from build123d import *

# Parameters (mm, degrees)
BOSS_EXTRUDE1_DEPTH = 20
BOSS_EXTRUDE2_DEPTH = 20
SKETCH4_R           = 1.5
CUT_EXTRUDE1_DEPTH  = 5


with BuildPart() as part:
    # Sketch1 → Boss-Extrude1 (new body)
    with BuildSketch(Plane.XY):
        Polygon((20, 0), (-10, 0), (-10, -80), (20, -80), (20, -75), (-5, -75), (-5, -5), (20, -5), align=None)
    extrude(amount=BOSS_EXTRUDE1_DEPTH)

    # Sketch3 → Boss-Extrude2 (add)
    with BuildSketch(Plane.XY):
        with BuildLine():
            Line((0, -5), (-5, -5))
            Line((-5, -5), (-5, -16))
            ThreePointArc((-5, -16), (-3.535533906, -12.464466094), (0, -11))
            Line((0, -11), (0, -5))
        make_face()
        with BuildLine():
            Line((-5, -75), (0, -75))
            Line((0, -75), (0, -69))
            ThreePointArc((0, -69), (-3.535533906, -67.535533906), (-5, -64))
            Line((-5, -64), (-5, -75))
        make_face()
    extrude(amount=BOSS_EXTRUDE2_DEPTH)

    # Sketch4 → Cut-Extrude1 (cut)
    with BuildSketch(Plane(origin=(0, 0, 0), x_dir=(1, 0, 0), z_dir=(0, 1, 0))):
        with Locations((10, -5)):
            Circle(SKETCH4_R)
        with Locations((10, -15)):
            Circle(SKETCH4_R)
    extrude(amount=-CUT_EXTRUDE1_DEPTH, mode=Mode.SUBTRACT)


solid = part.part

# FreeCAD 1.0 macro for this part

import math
import FreeCAD as App
import Part
import Sketcher

V = App.Vector
Q = App.Units.Quantity


def add_polygon(sketch, points):
    """Adds a closed chain of lines whose ends are joined by coincident constraints."""
    first, n = sketch.GeometryCount, len(points)
    for a, b in zip(points, points[1:] + points[:1]):
        sketch.addGeometry(Part.LineSegment(App.Vector(*a, 0), App.Vector(*b, 0)), False)
    for i in range(n):
        sketch.addConstraint(Sketcher.Constraint("Coincident", first + i, 2, first + (i + 1) % n, 1))

doc = App.newDocument("Part")
params = doc.addObject("Spreadsheet::Sheet", "Params")
for row, (alias, value) in enumerate([
    ("sketch1_width", "30 mm"),
    ("sketch1_width2", "25 mm"),
    ("sketch1_height", "80 mm"),
    ("sketch1_height2", "5 mm"),
    ("pad1_length", "20 mm"),
    ("sketch2_radius", "5 mm"),
    ("sketch2_height", "11 mm"),
    ("pad2_length", "20 mm"),
    ("sketch3_diameter", "3 mm"),
    ("pocket1_length", "5 mm"),
], start=1):
    params.set(f"A{row}", alias)
    params.set(f"B{row}", "=" + value)
    params.setAlias(f"B{row}", alias)

body = doc.addObject("PartDesign::Body", "Body")

# Sketch on XY plane
sketch1 = doc.addObject("Sketcher::SketchObject", "Sketch")
body.addObject(sketch1)
sketch1.AttachmentSupport = (doc.XY_Plane, [""])
sketch1.MapMode = "FlatFace"
add_polygon(sketch1, [(20, 0), (-10, 0), (-10, -80), (20, -80), (20, -75), (-5, -75), (-5, -5), (20, -5)])  # lines 0-7
sketch1.addConstraint([
    Sketcher.Constraint("Horizontal", 0),
    Sketcher.Constraint("Vertical", 1),
    Sketcher.Constraint("Horizontal", 2),
    Sketcher.Constraint("Vertical", 3),
    Sketcher.Constraint("Horizontal", 4),
    Sketcher.Constraint("Vertical", 5),
    Sketcher.Constraint("Horizontal", 6),
    Sketcher.Constraint("Vertical", 7),
    Sketcher.Constraint("PointOnObject", 0, 2, -1),
    Sketcher.Constraint("Vertical", 3, 2, 6, 2),
    Sketcher.Constraint("Equal", 3, 7),
    Sketcher.Constraint("DistanceX", 0, 2, 0, 1, Q("30 mm")),
    Sketcher.Constraint("DistanceX", 4, 2, 4, 1, Q("25 mm")),
    Sketcher.Constraint("DistanceY", 1, 2, 1, 1, Q("80 mm")),
    Sketcher.Constraint("DistanceY", 3, 1, 3, 2, Q("5 mm")),
    Sketcher.Constraint("DistanceX", 0, 2, -1, 1, Q("10 mm")),
])
sketch1.setExpression("Constraints[19]", "Params.sketch1_width")
sketch1.setExpression("Constraints[20]", "Params.sketch1_width2")
sketch1.setExpression("Constraints[21]", "Params.sketch1_height")
sketch1.setExpression("Constraints[22]", "Params.sketch1_height2")
pad1 = doc.addObject("PartDesign::Pad", "Pad")
body.addObject(pad1)
pad1.Profile = sketch1
pad1.setExpression("Length", "Params.pad1_length")

# Sketch on XY plane
sketch2 = doc.addObject("Sketcher::SketchObject", "Sketch001")
body.addObject(sketch2)
sketch2.AttachmentSupport = (doc.XY_Plane, [""])
sketch2.MapMode = "FlatFace"
sketch2.addGeometry([
    Part.LineSegment(V(0, -5, 0), V(-5, -5, 0)),  # 0
    Part.LineSegment(V(-5, -5, 0), V(-5, -16, 0)),  # 1
    Part.ArcOfCircle(Part.Circle(V(0, -16, 0), V(0, 0, 1), 5), math.radians(90), math.radians(180)),  # 2
    Part.LineSegment(V(0, -11, 0), V(0, -5, 0)),  # 3
    Part.LineSegment(V(-5, -75, 0), V(0, -75, 0)),  # 4
    Part.LineSegment(V(0, -75, 0), V(0, -69, 0)),  # 5
    Part.ArcOfCircle(Part.Circle(V(0, -64, 0), V(0, 0, 1), 5), math.radians(180), math.radians(270)),  # 6
    Part.LineSegment(V(-5, -64, 0), V(-5, -75, 0)),  # 7
], False)
sketch2.addConstraint([
    Sketcher.Constraint("Coincident", 0, 2, 1, 1),
    Sketcher.Constraint("Tangent", 1, 2, 2, 2),
    Sketcher.Constraint("Coincident", 2, 1, 3, 1),
    Sketcher.Constraint("Coincident", 3, 2, 0, 1),
    Sketcher.Constraint("Coincident", 4, 2, 5, 1),
    Sketcher.Constraint("Coincident", 5, 2, 6, 2),
    Sketcher.Constraint("Tangent", 6, 1, 7, 1),
    Sketcher.Constraint("Coincident", 7, 2, 4, 1),
    Sketcher.Constraint("Horizontal", 0),
    Sketcher.Constraint("Vertical", 1),
    Sketcher.Constraint("Vertical", 3),
    Sketcher.Constraint("Horizontal", 4),
    Sketcher.Constraint("Vertical", 5),
    Sketcher.Constraint("Vertical", 7),
    Sketcher.Constraint("Equal", 2, 6),
    Sketcher.Constraint("PointOnObject", 2, 3, -2),
    Sketcher.Constraint("PointOnObject", 6, 3, -2),
    Sketcher.Constraint("PointOnObject", 2, 1, -2),
    Sketcher.Constraint("PointOnObject", 4, 2, -2),
    Sketcher.Constraint("Equal", 3, 5),
    Sketcher.Constraint("Radius", 2, Q("5 mm")),
    Sketcher.Constraint("DistanceY", 1, 2, 1, 1, Q("11 mm")),
    Sketcher.Constraint("DistanceY", 2, 3, -1, 1, Q("16 mm")),
    Sketcher.Constraint("DistanceY", 6, 3, -1, 1, Q("64 mm")),
])
sketch2.setExpression("Constraints[20]", "Params.sketch2_radius")
sketch2.setExpression("Constraints[21]", "Params.sketch2_height")
pad2 = doc.addObject("PartDesign::Pad", "Pad001")
body.addObject(pad2)
pad2.Profile = sketch2
pad2.setExpression("Length", "Params.pad2_length")

# Sketch on XZ plane
sketch3 = doc.addObject("Sketcher::SketchObject", "Sketch002")
body.addObject(sketch3)
sketch3.AttachmentSupport = (doc.XZ_Plane, [""])
sketch3.MapMode = "FlatFace"
sketch3.addGeometry([
    Part.Circle(V(10, 5, 0), V(0, 0, 1), 1.5),
    Part.Circle(V(10, 15, 0), V(0, 0, 1), 1.5),
], False)
sketch3.addConstraint([
    Sketcher.Constraint("Equal", 0, 1),
    Sketcher.Constraint("Vertical", 0, 3, 1, 3),
    Sketcher.Constraint("Diameter", 0, Q("3 mm")),
    Sketcher.Constraint("DistanceX", -1, 1, 0, 3, Q("10 mm")),
    Sketcher.Constraint("DistanceY", -1, 1, 0, 3, Q("5 mm")),
    Sketcher.Constraint("DistanceY", -1, 1, 1, 3, Q("15 mm")),
])
sketch3.setExpression("Constraints[2]", "Params.sketch3_diameter")
pocket1 = doc.addObject("PartDesign::Pocket", "Pocket")
body.addObject(pocket1)
pocket1.Profile = sketch3
pocket1.setExpression("Length", "Params.pocket1_length")
pocket1.Reversed = True

doc.recompute()
